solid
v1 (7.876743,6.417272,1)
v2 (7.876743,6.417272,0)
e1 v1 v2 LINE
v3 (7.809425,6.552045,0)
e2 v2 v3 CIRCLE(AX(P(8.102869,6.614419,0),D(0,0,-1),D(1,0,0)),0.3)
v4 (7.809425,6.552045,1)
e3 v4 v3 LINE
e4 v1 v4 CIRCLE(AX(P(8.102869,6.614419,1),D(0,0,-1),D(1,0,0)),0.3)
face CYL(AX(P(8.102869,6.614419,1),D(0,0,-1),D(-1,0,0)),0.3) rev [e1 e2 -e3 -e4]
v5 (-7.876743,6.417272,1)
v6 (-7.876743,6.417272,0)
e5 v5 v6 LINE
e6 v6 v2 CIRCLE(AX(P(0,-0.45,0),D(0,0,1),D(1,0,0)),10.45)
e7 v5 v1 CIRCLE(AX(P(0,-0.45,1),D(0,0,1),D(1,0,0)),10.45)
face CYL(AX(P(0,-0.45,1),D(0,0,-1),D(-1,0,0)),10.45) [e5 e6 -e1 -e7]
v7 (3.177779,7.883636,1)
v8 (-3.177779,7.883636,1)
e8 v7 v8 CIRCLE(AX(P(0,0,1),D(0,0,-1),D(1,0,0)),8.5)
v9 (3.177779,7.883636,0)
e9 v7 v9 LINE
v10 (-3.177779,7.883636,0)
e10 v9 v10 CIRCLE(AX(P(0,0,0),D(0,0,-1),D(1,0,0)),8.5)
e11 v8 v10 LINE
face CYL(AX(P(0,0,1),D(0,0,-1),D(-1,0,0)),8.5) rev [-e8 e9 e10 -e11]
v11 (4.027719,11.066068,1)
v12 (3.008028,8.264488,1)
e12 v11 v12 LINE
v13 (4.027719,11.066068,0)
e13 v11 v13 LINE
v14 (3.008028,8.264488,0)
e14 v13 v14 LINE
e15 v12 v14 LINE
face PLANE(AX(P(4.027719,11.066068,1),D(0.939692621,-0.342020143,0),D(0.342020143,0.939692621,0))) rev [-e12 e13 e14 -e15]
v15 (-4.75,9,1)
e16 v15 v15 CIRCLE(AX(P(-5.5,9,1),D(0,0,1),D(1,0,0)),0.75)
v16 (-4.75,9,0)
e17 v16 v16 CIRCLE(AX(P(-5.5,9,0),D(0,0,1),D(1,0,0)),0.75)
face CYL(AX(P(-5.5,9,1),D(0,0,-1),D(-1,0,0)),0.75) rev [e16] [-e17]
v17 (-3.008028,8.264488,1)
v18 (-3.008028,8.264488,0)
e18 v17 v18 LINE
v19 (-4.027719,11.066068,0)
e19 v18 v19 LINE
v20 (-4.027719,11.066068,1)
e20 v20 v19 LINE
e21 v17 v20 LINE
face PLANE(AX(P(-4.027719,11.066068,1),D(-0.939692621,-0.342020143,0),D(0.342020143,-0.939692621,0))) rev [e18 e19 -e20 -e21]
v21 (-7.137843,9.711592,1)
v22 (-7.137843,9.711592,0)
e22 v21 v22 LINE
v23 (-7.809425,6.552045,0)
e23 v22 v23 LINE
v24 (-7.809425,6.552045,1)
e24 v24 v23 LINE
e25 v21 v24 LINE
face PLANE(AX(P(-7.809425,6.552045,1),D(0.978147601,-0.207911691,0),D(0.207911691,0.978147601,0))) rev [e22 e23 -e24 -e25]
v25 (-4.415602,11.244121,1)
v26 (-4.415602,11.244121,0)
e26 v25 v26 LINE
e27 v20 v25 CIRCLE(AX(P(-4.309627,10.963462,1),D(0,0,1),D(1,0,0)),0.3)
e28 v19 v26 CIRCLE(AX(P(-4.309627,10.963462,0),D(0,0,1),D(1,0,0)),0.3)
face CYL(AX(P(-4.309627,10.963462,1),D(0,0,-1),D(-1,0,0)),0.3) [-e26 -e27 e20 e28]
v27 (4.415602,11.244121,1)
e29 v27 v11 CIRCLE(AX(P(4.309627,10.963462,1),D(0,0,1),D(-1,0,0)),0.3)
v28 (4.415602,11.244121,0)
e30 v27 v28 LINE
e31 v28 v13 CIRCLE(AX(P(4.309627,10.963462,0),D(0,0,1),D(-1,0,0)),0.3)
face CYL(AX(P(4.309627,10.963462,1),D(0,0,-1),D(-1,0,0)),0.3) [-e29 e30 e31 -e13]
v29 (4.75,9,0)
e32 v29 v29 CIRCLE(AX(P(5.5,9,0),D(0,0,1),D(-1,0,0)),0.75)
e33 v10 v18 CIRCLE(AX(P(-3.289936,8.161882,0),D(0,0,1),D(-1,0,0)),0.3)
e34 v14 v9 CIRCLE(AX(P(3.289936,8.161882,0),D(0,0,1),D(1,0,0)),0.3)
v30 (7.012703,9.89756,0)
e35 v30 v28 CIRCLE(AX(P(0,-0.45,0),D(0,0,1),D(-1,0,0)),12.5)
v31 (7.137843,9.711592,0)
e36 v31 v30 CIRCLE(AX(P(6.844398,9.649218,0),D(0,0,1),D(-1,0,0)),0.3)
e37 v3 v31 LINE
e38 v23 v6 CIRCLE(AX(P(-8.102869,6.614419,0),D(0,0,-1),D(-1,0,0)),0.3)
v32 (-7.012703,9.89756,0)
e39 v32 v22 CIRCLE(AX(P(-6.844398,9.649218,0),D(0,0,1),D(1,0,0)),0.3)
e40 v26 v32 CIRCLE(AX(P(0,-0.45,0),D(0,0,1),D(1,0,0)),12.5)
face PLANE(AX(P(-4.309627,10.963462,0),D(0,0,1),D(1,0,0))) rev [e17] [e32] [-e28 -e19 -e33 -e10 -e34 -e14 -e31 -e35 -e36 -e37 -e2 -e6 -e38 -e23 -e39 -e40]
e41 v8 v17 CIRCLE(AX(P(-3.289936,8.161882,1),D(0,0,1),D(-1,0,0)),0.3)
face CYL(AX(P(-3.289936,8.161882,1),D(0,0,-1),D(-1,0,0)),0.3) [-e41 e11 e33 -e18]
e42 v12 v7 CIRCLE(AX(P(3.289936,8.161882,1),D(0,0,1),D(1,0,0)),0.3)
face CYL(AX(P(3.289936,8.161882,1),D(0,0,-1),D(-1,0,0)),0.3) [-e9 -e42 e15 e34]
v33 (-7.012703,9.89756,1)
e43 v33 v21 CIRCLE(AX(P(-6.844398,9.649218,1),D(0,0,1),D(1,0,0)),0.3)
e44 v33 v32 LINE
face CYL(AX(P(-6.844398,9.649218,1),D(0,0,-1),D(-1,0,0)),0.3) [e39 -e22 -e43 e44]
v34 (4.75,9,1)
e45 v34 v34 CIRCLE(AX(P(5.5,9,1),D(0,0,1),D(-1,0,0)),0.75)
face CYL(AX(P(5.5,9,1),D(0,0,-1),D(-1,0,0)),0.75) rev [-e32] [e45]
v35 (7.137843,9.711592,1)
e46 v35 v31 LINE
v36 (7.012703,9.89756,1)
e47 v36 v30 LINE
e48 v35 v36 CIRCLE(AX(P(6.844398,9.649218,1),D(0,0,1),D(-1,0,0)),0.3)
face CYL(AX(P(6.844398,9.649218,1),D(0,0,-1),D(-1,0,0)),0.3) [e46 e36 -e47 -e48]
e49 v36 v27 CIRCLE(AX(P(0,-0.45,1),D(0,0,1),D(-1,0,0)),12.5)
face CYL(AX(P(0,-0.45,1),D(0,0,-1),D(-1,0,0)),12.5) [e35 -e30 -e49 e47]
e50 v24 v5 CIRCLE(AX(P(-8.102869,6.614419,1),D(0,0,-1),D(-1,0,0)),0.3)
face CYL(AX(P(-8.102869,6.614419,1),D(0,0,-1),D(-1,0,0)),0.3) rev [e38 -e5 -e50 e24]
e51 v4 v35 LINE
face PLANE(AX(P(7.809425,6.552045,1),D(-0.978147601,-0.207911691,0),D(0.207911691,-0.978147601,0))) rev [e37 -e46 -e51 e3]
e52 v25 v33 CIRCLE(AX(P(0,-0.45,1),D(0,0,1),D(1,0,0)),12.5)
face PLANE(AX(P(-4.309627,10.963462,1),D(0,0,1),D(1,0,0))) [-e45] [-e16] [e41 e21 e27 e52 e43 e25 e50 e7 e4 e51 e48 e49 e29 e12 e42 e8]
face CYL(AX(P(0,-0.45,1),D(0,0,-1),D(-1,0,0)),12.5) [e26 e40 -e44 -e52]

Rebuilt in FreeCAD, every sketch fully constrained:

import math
import FreeCAD as App
import Part
import Sketcher
Q = App.Units.Quantity

doc = App.newDocument("Part")
body = doc.addObject("PartDesign::Body", "Body")

# Sketch on XY plane
sketch1 = doc.addObject("Sketcher::SketchObject", "Sketch")
body.addObject(sketch1)
sketch1.AttachmentSupport = (doc.XY_Plane, [""])
sketch1.MapMode = "FlatFace"
sketch1.addGeometry([
    Part.LineSegment(App.Vector(-7.14, 9.71, 0), App.Vector(-7.81, 6.55, 0)),  # 0
    Part.ArcOfCircle(Part.Circle(App.Vector(-8.1, 6.61, 0), App.Vector(0, 0, 1), 0.3), math.radians(-41), math.radians(-12)),  # 1
    Part.ArcOfCircle(Part.Circle(App.Vector(0, -0.45, 0), App.Vector(0, 0, 1), 10.45), math.radians(139), math.radians(401)),  # 2
    Part.ArcOfCircle(Part.Circle(App.Vector(8.1, 6.61, 0), App.Vector(0, 0, 1), 0.3), math.radians(-168), math.radians(-139)),  # 3
    Part.LineSegment(App.Vector(7.81, 6.55, 0), App.Vector(7.14, 9.71, 0)),  # 4
    Part.ArcOfCircle(Part.Circle(App.Vector(6.84, 9.65, 0), App.Vector(0, 0, 1), 0.3), math.radians(12), math.radians(56)),  # 5
    Part.ArcOfCircle(Part.Circle(App.Vector(0, -0.45, 0), App.Vector(0, 0, 1), 12.5), math.radians(55.87), math.radians(69.31)),  # 6
    Part.ArcOfCircle(Part.Circle(App.Vector(4.31, 10.96, 0), App.Vector(0, 0, 1), 0.3), math.radians(69), math.radians(160)),  # 7
    Part.LineSegment(App.Vector(4.03, 11.07, 0), App.Vector(3.01, 8.26, 0)),  # 8
    Part.ArcOfCircle(Part.Circle(App.Vector(3.29, 8.16, 0), App.Vector(0, 0, 1), 0.3), math.radians(160), math.radians(248)),  # 9
    Part.ArcOfCircle(Part.Circle(App.Vector(0, 0, 0), App.Vector(0, 0, 1), 8.5), math.radians(112), math.radians(428)),  # 10
    Part.ArcOfCircle(Part.Circle(App.Vector(-3.29, 8.16, 0), App.Vector(0, 0, 1), 0.3), math.radians(-68), math.radians(20)),  # 11
    Part.LineSegment(App.Vector(-3.01, 8.26, 0), App.Vector(-4.03, 11.07, 0)),  # 12
    Part.ArcOfCircle(Part.Circle(App.Vector(-4.31, 10.96, 0), App.Vector(0, 0, 1), 0.3), math.radians(20), math.radians(111)),  # 13
    Part.ArcOfCircle(Part.Circle(App.Vector(0, -0.45, 0), App.Vector(0, 0, 1), 12.5), math.radians(110.69), math.radians(124.13)),  # 14
    Part.ArcOfCircle(Part.Circle(App.Vector(-6.84, 9.65, 0), App.Vector(0, 0, 1), 0.3), math.radians(124), math.radians(168)),  # 15
    Part.Circle(App.Vector(5.5, 9, 0), App.Vector(0, 0, 1), 0.75),  # 16
    Part.Circle(App.Vector(-5.5, 9, 0), App.Vector(0, 0, 1), 0.75),  # 17
], False)
sketch1.addConstraint([
    Sketcher.Constraint("Tangent", 0, 2, 1, 2),
    Sketcher.Constraint("Tangent", 1, 1, 2, 1),
    Sketcher.Constraint("Tangent", 2, 2, 3, 2),
    Sketcher.Constraint("Tangent", 3, 1, 4, 1),
    Sketcher.Constraint("Tangent", 4, 2, 5, 1),
    Sketcher.Constraint("Tangent", 5, 2, 6, 1),
    Sketcher.Constraint("Tangent", 6, 2, 7, 1),
    Sketcher.Constraint("Tangent", 7, 2, 8, 1),
    Sketcher.Constraint("Tangent", 8, 2, 9, 1),
    Sketcher.Constraint("Tangent", 9, 2, 10, 2),
    Sketcher.Constraint("Tangent", 10, 1, 11, 1),
    Sketcher.Constraint("Tangent", 11, 2, 12, 1),
    Sketcher.Constraint("Tangent", 12, 2, 13, 1),
    Sketcher.Constraint("Tangent", 13, 2, 14, 1),
    Sketcher.Constraint("Tangent", 14, 2, 15, 1),
    Sketcher.Constraint("Tangent", 15, 2, 0, 1),
    Sketcher.Constraint("Coincident", 10, 3, -1, 1),
    Sketcher.Constraint("Coincident", 6, 3, 2, 3),
    Sketcher.Constraint("Coincident", 14, 3, 2, 3),
    Sketcher.Constraint("Equal", 1, 3),
    Sketcher.Constraint("Equal", 3, 5),
    Sketcher.Constraint("Equal", 5, 7),
    Sketcher.Constraint("Equal", 7, 9),
    Sketcher.Constraint("Equal", 9, 11),
    Sketcher.Constraint("Equal", 11, 13),
    Sketcher.Constraint("Equal", 6, 14),
    Sketcher.Constraint("Equal", 13, 15),
    Sketcher.Constraint("Equal", 16, 17),
    Sketcher.Constraint("Symmetric", 1, 3, 3, 3, -2),
    Sketcher.Constraint("Symmetric", 16, 3, 17, 3, -2),
    Sketcher.Constraint("Symmetric", 8, 2, 11, 2, -2),
    Sketcher.Constraint("Horizontal", 5, 3, 15, 3),
    Sketcher.Constraint("Diameter", 16, 1.5),
    Sketcher.Constraint("Radius", 1, 0.3),
    Sketcher.Constraint("Radius", 6, 12.5),
    Sketcher.Constraint("Radius", 10, 8.5),
    Sketcher.Constraint("Angle", 0, Q("-102 deg")),
    Sketcher.Constraint("Angle", 8, Q("-110 deg")),
    Sketcher.Constraint("Radius", 2, 10.45),
    Sketcher.Constraint("DistanceY", -1, 1, 16, 3, 9.0),
    Sketcher.Constraint("DistanceX", -1, 1, 16, 3, 5.5),
    Sketcher.Constraint("DistanceY", 2, 3, -1, 1, 0.45),
    Sketcher.Constraint("DistanceX", -1, 1, 5, 3, 6.844398),
    Sketcher.Constraint("DistanceX", -1, 1, 6, 2, 4.415602),
])
pad1 = doc.addObject("PartDesign::Pad", "Pad")
body.addObject(pad1)
pad1.Profile = sketch1
pad1.Length = 1

doc.recompute()
